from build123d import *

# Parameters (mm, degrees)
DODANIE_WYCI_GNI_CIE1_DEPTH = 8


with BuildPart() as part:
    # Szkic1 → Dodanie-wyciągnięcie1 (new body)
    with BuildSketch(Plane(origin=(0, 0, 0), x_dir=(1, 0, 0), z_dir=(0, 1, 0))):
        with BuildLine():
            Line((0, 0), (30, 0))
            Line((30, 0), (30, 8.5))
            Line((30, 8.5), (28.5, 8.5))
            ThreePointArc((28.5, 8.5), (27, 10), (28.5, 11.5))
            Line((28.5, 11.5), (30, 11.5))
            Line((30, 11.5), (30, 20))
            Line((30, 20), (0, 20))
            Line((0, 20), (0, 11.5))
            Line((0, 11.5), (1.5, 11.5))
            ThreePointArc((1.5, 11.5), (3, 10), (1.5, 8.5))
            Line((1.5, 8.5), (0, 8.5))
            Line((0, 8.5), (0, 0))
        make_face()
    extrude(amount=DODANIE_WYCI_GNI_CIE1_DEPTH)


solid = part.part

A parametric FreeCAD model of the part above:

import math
import FreeCAD as App
import Part
import Sketcher

V = App.Vector
Q = App.Units.Quantity

doc = App.newDocument("Part")
body = doc.addObject("PartDesign::Body", "Body")

# Sketch on XZ plane
sketch1 = body.newObject("Sketcher::SketchObject", "Sketch")
sketch1.AttachmentSupport = (doc.getObject("XZ_Plane"), [""])
sketch1.MapMode = "FlatFace"
sketch1.addGeometry(Part.LineSegment(V(0, 0, 0), V(30, 0, 0)), False)
sketch1.addGeometry(Part.LineSegment(V(30, 0, 0), V(30, -8.5, 0)), False)
sketch1.addGeometry(Part.LineSegment(V(30, -8.5, 0), V(28.5, -8.5, 0)), False)
sketch1.addGeometry(Part.ArcOfCircle(Part.Circle(V(28.5, -10, 0), V(0, 0, 1), 1.5), math.radians(90), math.radians(270)), False)
sketch1.addGeometry(Part.LineSegment(V(28.5, -11.5, 0), V(30, -11.5, 0)), False)
sketch1.addGeometry(Part.LineSegment(V(30, -11.5, 0), V(30, -20, 0)), False)
sketch1.addGeometry(Part.LineSegment(V(30, -20, 0), V(0, -20, 0)), False)
sketch1.addGeometry(Part.LineSegment(V(0, -20, 0), V(0, -11.5, 0)), False)
sketch1.addGeometry(Part.LineSegment(V(0, -11.5, 0), V(1.5, -11.5, 0)), False)
sketch1.addGeometry(Part.ArcOfCircle(Part.Circle(V(1.5, -10, 0), V(0, 0, 1), 1.5), math.radians(-90), math.radians(90)), False)
sketch1.addGeometry(Part.LineSegment(V(1.5, -8.5, 0), V(0, -8.5, 0)), False)
sketch1.addGeometry(Part.LineSegment(V(0, -8.5, 0), V(0, 0, 0)), False)
sketch1.addConstraint(Sketcher.Constraint("Coincident", 0, 2, 1, 1))
sketch1.addConstraint(Sketcher.Constraint("Coincident", 1, 2, 2, 1))
sketch1.addConstraint(Sketcher.Constraint("Tangent", 2, 2, 3, 1))
sketch1.addConstraint(Sketcher.Constraint("Tangent", 3, 2, 4, 1))
sketch1.addConstraint(Sketcher.Constraint("Coincident", 4, 2, 5, 1))
sketch1.addConstraint(Sketcher.Constraint("Coincident", 5, 2, 6, 1))
sketch1.addConstraint(Sketcher.Constraint("Coincident", 6, 2, 7, 1))
sketch1.addConstraint(Sketcher.Constraint("Coincident", 7, 2, 8, 1))
sketch1.addConstraint(Sketcher.Constraint("Tangent", 8, 2, 9, 1))
sketch1.addConstraint(Sketcher.Constraint("Tangent", 9, 2, 10, 1))
sketch1.addConstraint(Sketcher.Constraint("Coincident", 10, 2, 11, 1))
sketch1.addConstraint(Sketcher.Constraint("Coincident", 11, 2, 0, 1))
sketch1.addConstraint(Sketcher.Constraint("Horizontal", 0))
sketch1.addConstraint(Sketcher.Constraint("Vertical", 1))
sketch1.addConstraint(Sketcher.Constraint("Horizontal", 2))
sketch1.addConstraint(Sketcher.Constraint("Horizontal", 4))
sketch1.addConstraint(Sketcher.Constraint("Vertical", 5))
sketch1.addConstraint(Sketcher.Constraint("Horizontal", 6))
sketch1.addConstraint(Sketcher.Constraint("Vertical", 7))
sketch1.addConstraint(Sketcher.Constraint("Horizontal", 8))
sketch1.addConstraint(Sketcher.Constraint("Horizontal", 10))
sketch1.addConstraint(Sketcher.Constraint("Vertical", 11))
sketch1.addConstraint(Sketcher.Constraint("Coincident", 11, 2, -1, 1))
sketch1.addConstraint(Sketcher.Constraint("Equal", 3, 9))
sketch1.addConstraint(Sketcher.Constraint("PointOnObject", 6, 2, -2))
sketch1.addConstraint(Sketcher.Constraint("Horizontal", 3, 3, 9, 3))
sketch1.addConstraint(Sketcher.Constraint("Vertical", 1, 2, 4, 2))
sketch1.addConstraint(Sketcher.Constraint("Equal", 4, 8))
sketch1.addConstraint(Sketcher.Constraint("Equal", 1, 5))
sketch1.addConstraint(Sketcher.Constraint("Radius", 3, Q("1.5 mm")))
sketch1.addConstraint(Sketcher.Constraint("DistanceX", 0, 1, 0, 2, Q("30 mm")))
sketch1.addConstraint(Sketcher.Constraint("DistanceX", 2, 2, 2, 1, Q("1.5 mm")))
sketch1.addConstraint(Sketcher.Constraint("DistanceY", 1, 2, 1, 1, Q("8.5 mm")))
pad1 = body.newObject("PartDesign::Pad", "Pad")
pad1.Profile = sketch1
pad1.Length = 8
pad1.Reversed = True

doc.recompute()
